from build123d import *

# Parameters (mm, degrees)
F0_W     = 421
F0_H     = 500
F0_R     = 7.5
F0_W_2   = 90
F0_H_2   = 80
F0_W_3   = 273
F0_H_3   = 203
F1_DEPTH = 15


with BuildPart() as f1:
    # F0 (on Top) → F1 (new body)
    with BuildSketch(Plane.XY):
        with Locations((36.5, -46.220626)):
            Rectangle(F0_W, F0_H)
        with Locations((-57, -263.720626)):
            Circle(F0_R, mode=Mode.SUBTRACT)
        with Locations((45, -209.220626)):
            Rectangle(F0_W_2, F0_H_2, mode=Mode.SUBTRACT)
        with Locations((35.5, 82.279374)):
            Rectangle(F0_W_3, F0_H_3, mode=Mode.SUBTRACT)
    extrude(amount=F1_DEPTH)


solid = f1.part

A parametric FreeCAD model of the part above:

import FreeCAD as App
import Part
import Sketcher
from FreeCAD import Vector


def add_polygon(sketch, points):
    """Adds a closed chain of lines whose ends are joined by coincident constraints."""
    first, n = sketch.GeometryCount, len(points)
    for a, b in zip(points, points[1:] + points[:1]):
        sketch.addGeometry(Part.LineSegment(App.Vector(*a, 0), App.Vector(*b, 0)), False)
    for i in range(n):
        sketch.addConstraint(Sketcher.Constraint("Coincident", first + i, 2, first + (i + 1) % n, 1))

doc = App.newDocument("Part")
body = doc.addObject("PartDesign::Body", "Body")

sketch1 = body.newObject("Sketcher::SketchObject", "Sketch")
sketch1.AttachmentSupport = (doc.getObject("XY_Plane"), [""])
sketch1.MapMode = "FlatFace"
add_polygon(sketch1, [(-174, 204), (-174, -296), (247, -296), (247, 204)])
sketch1.addGeometry(Part.Circle(Vector(-57, -264, 0), Vector(0, 0, 1), 8), False)
add_polygon(sketch1, [(90, -249), (0, -249), (0, -169), (90, -169)])
add_polygon(sketch1, [(172, -19), (-101, -19), (-101, 184), (172, 184)])
sketch1.addConstraint([
    Sketcher.Constraint("Vertical", 0),
    Sketcher.Constraint("Horizontal", 1),
    Sketcher.Constraint("Vertical", 2),
    Sketcher.Constraint("Horizontal", 3),
    Sketcher.Constraint("Horizontal", 5),
    Sketcher.Constraint("Vertical", 6),
    Sketcher.Constraint("Horizontal", 7),
    Sketcher.Constraint("Vertical", 8),
    Sketcher.Constraint("Horizontal", 9),
    Sketcher.Constraint("Vertical", 10),
    Sketcher.Constraint("Horizontal", 11),
    Sketcher.Constraint("Vertical", 12),
    Sketcher.Constraint("PointOnObject", 5, 2, -2),
    Sketcher.Constraint("Diameter", 4, 15.0),
    Sketcher.Constraint("DistanceX", 1, 1, 1, 2, 421.0),
    Sketcher.Constraint("DistanceX", 5, 2, 5, 1, 90.0),
    Sketcher.Constraint("DistanceX", 9, 2, 9, 1, 273.0),
    Sketcher.Constraint("DistanceY", 0, 2, 0, 1, 500.0),
    Sketcher.Constraint("DistanceY", 6, 1, 6, 2, 80.0),
    Sketcher.Constraint("DistanceY", 10, 1, 10, 2, 203.0),
    Sketcher.Constraint("DistanceX", 4, 3, -1, 1, 57.0),
    Sketcher.Constraint("DistanceX", 0, 2, -1, 1, 174.0),
    Sketcher.Constraint("DistanceX", 9, 2, -1, 1, 101.0),
    Sketcher.Constraint("DistanceY", 0, 2, 5, 2, 47.0),
    Sketcher.Constraint("DistanceY", 6, 2, 9, 2, 150.0),
    Sketcher.Constraint("DistanceY", 0, 2, 4, 3, 32.5),
    Sketcher.Constraint("DistanceY", 4, 3, -1, 1, 263.720626),
])
pad1 = body.newObject("PartDesign::Pad", "Pad")
pad1.Profile = sketch1
pad1.Length = 15

doc.recompute()
